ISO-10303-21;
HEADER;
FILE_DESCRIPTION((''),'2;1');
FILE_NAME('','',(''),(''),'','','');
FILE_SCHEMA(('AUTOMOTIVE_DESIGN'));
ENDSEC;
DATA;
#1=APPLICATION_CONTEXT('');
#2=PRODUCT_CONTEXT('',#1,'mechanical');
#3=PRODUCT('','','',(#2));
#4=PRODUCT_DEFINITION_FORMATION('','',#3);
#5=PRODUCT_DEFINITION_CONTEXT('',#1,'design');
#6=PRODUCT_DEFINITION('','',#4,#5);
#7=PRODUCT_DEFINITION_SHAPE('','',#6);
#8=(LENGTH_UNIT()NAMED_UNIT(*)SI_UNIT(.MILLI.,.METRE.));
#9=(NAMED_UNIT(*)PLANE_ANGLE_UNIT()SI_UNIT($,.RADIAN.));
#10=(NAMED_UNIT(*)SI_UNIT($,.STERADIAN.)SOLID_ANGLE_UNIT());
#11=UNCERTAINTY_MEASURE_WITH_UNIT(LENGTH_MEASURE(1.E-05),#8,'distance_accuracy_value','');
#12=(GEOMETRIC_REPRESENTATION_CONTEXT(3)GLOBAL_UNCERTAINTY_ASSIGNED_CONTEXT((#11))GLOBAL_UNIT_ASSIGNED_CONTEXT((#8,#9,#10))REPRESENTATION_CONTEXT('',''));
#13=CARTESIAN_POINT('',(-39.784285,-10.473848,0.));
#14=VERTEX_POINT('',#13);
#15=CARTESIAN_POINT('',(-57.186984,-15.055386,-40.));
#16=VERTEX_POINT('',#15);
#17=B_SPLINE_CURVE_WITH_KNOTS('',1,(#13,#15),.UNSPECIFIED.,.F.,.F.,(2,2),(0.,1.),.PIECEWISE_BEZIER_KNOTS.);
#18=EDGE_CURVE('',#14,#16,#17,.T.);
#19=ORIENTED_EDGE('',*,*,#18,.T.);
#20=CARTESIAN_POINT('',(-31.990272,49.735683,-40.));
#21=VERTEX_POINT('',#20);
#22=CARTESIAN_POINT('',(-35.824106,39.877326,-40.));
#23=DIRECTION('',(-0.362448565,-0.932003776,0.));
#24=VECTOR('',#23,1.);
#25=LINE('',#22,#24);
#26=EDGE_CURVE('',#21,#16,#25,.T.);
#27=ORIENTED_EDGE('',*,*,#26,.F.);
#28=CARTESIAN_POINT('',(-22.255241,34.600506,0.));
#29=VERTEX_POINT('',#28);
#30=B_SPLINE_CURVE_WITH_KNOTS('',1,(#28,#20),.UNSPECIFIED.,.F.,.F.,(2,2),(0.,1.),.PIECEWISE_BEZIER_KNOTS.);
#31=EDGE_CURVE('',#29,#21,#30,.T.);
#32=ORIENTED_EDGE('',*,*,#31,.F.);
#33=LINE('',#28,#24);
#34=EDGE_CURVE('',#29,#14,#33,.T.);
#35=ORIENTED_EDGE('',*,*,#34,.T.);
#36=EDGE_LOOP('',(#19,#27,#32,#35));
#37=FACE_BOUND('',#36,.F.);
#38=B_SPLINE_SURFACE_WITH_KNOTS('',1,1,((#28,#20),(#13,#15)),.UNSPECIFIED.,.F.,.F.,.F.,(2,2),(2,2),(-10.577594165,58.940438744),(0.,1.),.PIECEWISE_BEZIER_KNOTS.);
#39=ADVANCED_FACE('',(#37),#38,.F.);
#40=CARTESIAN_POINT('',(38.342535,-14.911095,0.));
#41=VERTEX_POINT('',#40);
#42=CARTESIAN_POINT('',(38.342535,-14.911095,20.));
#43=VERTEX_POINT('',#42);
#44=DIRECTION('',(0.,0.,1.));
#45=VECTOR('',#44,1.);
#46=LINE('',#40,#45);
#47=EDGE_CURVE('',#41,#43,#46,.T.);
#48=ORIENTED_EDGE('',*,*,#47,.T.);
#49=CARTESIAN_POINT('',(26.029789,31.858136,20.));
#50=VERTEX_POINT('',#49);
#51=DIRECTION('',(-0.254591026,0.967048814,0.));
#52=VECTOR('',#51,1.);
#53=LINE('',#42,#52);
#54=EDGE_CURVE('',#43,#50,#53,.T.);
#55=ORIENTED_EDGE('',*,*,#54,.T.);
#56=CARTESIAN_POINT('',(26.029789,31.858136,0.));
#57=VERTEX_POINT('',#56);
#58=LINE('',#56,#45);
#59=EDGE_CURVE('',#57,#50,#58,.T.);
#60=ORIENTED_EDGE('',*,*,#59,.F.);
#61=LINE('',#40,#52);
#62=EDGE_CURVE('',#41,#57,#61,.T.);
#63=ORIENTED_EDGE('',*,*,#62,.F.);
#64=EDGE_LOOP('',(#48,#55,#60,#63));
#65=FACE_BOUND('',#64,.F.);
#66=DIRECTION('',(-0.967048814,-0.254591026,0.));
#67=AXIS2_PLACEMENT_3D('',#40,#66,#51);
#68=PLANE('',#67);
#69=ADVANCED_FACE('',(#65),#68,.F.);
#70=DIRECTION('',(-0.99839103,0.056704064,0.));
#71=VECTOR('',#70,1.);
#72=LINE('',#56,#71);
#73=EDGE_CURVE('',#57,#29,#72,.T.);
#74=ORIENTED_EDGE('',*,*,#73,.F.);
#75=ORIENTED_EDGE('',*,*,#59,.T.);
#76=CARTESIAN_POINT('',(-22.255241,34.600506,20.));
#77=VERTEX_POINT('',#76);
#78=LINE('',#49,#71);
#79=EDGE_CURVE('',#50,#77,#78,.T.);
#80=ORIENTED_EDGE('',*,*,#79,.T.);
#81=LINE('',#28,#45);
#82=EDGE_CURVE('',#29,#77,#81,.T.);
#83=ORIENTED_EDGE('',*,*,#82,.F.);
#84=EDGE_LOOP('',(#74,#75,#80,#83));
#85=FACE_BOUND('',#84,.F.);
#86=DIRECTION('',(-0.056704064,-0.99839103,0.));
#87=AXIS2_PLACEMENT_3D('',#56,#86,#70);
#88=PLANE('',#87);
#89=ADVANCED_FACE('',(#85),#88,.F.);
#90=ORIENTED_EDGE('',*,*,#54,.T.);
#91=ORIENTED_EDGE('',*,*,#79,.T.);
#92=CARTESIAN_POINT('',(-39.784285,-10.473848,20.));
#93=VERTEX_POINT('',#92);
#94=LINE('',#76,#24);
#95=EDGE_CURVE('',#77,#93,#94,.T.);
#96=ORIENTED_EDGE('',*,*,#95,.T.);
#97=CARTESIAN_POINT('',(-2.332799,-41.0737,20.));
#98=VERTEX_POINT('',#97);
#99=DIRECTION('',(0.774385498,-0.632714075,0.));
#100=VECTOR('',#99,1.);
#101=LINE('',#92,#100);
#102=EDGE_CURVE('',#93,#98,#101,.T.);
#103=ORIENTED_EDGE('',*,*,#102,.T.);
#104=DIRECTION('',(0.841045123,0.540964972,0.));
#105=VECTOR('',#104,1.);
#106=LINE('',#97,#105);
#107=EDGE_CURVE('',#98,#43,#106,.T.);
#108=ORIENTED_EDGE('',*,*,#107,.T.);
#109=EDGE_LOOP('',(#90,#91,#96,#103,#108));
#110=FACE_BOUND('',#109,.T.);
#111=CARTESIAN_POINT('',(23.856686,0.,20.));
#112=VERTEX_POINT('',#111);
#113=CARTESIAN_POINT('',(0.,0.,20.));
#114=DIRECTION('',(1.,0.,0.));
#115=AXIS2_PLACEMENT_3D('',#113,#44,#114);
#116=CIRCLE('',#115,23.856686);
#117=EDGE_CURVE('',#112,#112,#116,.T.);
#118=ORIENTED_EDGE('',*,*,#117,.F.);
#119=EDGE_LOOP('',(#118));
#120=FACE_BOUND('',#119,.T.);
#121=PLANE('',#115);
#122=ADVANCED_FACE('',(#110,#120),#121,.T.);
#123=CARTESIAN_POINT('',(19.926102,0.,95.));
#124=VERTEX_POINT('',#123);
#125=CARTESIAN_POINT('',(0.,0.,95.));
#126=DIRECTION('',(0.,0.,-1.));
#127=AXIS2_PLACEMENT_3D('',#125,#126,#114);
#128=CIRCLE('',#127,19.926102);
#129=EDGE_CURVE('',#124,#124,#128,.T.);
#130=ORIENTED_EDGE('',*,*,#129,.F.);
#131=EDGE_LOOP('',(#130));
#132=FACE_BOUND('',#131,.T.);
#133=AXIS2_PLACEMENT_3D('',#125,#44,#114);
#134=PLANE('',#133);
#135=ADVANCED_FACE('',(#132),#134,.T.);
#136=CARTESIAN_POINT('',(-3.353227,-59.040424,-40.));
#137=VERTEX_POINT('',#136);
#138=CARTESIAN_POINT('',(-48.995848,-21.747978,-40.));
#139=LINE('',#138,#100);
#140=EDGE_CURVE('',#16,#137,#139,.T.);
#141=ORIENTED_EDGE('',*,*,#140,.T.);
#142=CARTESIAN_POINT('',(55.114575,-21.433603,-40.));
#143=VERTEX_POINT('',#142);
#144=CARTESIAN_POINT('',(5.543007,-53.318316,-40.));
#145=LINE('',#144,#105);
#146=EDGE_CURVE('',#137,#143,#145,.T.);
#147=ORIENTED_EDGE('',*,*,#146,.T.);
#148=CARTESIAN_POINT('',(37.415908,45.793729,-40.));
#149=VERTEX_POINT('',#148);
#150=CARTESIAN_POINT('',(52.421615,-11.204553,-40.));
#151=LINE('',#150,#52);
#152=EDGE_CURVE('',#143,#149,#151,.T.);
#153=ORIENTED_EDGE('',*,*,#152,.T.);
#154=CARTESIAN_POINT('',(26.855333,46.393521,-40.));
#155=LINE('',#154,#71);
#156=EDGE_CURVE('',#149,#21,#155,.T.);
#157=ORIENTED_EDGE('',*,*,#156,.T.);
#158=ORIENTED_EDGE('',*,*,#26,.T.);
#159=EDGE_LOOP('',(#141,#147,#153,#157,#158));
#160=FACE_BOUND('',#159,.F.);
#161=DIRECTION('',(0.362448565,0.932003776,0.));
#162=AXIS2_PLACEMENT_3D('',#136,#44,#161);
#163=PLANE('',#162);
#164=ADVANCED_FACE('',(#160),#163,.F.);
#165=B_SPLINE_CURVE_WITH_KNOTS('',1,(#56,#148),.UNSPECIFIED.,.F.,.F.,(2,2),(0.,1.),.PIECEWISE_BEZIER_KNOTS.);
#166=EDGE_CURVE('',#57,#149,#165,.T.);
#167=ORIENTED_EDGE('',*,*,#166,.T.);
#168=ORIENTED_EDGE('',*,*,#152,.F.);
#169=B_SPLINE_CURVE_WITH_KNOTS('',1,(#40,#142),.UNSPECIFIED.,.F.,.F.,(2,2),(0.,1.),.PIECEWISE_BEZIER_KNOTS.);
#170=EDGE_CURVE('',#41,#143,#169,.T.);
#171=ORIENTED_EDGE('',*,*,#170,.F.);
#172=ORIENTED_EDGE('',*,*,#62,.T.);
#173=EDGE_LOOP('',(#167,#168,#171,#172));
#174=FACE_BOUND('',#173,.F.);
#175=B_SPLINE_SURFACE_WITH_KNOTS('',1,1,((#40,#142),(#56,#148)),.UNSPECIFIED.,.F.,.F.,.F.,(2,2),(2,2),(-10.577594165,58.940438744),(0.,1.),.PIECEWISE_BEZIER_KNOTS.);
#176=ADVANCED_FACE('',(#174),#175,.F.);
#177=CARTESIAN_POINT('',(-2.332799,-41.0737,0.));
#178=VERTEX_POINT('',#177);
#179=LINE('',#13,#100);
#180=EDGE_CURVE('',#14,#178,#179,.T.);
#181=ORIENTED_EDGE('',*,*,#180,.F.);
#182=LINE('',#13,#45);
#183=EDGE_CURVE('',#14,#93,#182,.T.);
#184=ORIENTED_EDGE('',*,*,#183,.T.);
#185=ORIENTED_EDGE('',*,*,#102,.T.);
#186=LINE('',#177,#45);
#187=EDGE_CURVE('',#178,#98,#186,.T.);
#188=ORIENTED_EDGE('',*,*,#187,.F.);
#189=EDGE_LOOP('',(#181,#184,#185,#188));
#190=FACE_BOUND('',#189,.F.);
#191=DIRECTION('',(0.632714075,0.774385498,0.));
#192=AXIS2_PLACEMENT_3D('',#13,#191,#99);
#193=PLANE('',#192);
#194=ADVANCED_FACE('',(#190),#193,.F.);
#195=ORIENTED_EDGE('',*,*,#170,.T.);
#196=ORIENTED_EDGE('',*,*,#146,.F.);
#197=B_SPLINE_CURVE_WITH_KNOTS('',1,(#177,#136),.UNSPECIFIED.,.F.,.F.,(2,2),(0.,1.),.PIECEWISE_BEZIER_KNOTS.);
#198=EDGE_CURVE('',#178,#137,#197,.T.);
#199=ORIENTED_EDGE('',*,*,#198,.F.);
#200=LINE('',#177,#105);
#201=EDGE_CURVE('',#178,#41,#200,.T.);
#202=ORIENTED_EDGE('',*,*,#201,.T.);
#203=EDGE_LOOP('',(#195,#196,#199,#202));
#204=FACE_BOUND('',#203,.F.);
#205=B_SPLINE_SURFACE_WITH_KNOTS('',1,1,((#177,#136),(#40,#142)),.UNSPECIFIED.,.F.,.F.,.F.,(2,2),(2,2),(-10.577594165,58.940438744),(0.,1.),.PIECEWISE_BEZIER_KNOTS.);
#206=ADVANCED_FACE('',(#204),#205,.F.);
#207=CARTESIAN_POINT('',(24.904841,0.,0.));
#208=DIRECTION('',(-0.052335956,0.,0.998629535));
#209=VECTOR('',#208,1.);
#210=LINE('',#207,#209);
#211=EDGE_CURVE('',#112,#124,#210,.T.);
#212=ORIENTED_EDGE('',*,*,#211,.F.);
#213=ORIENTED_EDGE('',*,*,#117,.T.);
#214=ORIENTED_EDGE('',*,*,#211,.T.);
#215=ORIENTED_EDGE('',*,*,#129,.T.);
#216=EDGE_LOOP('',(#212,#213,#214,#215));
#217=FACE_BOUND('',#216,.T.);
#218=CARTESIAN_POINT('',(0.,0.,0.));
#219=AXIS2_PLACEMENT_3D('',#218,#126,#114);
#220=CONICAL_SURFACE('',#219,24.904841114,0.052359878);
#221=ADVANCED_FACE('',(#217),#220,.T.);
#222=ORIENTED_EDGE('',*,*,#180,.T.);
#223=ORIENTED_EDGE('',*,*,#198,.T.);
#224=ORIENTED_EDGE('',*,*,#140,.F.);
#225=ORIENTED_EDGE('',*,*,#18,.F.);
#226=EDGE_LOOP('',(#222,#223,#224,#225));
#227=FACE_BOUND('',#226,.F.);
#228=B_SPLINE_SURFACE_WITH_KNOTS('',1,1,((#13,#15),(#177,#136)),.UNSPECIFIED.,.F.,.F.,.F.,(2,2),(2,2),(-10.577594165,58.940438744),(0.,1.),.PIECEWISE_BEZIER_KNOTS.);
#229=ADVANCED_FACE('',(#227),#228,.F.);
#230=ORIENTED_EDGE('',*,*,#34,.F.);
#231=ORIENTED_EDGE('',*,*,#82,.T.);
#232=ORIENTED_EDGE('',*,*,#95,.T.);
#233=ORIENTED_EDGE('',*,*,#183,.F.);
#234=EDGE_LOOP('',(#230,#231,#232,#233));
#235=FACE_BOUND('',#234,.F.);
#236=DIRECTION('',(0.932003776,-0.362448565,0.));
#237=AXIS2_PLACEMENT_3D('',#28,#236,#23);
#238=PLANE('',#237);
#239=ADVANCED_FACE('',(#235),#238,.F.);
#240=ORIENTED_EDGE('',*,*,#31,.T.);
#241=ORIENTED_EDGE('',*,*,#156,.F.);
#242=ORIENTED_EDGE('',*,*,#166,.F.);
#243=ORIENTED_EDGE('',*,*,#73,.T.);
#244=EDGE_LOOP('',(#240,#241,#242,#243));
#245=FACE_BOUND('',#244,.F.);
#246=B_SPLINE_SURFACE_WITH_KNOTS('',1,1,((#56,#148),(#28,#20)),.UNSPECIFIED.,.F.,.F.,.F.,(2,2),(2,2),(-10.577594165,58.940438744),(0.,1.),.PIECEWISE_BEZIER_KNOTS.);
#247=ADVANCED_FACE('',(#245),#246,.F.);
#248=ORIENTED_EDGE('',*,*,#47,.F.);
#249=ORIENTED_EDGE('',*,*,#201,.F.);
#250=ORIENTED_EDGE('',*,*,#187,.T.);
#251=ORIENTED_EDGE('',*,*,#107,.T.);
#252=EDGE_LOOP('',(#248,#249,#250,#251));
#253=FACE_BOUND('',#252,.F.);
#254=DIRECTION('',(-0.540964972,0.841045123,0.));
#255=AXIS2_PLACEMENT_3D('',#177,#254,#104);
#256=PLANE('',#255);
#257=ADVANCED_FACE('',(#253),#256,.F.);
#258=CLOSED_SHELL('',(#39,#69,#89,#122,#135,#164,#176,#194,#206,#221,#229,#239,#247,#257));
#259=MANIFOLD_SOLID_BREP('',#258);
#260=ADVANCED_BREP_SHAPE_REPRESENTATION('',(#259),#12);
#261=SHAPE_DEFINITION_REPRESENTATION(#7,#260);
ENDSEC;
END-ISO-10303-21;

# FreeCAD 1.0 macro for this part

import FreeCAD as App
import Part
import Sketcher
Q = App.Units.Quantity


def add_polygon(sketch, points):
    """Adds a closed chain of lines whose ends are joined by coincident constraints."""
    first, n = sketch.GeometryCount, len(points)
    for a, b in zip(points, points[1:] + points[:1]):
        sketch.addGeometry(Part.LineSegment(App.Vector(*a, 0), App.Vector(*b, 0)), False)
    for i in range(n):
        sketch.addConstraint(Sketcher.Constraint("Coincident", first + i, 2, first + (i + 1) % n, 1))

doc = App.newDocument("Part")
body = doc.addObject("PartDesign::Body", "Body")

sketch1 = doc.addObject("Sketcher::SketchObject", "Sketch")
body.addObject(sketch1)
sketch1.AttachmentSupport = (doc.XY_Plane, [""])
sketch1.MapMode = "FlatFace"
add_polygon(sketch1, [(-2.332799, -41.0737), (38.342535, -14.911095), (26.029789, 31.858136), (-22.255241, 34.600506), (-39.784285, -10.473848)])
sketch1.addConstraint([
    Sketcher.Constraint("Equal", 0, 1),
    Sketcher.Constraint("Equal", 1, 2),
    Sketcher.Constraint("Equal", 2, 3),
    Sketcher.Constraint("Equal", 3, 4),
    Sketcher.Constraint("DistanceX", 4, 2, -1, 1, Q("2.332799 mm")),
    Sketcher.Constraint("DistanceY", 4, 2, -1, 1, Q("41.0737 mm")),
    Sketcher.Constraint("DistanceY", 0, 2, 2, 2, Q("49.511601 mm")),
    Sketcher.Constraint("DistanceX", -1, 1, 1, 2, Q("26.029789 mm")),
    Sketcher.Constraint("DistanceX", 2, 2, -1, 1, Q("22.255241 mm")),
    Sketcher.Constraint("DistanceY", 0, 2, 1, 2, Q("46.769232 mm")),
])
pad1 = doc.addObject("PartDesign::Pad", "Pad")
body.addObject(pad1)
pad1.Profile = sketch1
pad1.Length = 40
pad1.Reversed = True
pad1.TaperAngle = 20
pad2 = doc.addObject("PartDesign::Pad", "Pad001")
body.addObject(pad2)
pad2.Profile = sketch1
pad2.Length = 20

sketch2 = doc.addObject("Sketcher::SketchObject", "Sketch001")
body.addObject(sketch2)
sketch2.AttachmentSupport = (doc.XY_Plane, [""])
sketch2.MapMode = "FlatFace"
sketch2.addGeometry(Part.Circle(App.Vector(0, 0, 0), App.Vector(0, 0, 1), 24.904841), False)
sketch2.addConstraint([
    Sketcher.Constraint("Coincident", 0, 3, -1, 1),
    Sketcher.Constraint("Diameter", 0, Q("49.809682 mm")),
])
pad3 = doc.addObject("PartDesign::Pad", "Pad002")
body.addObject(pad3)
pad3.Profile = sketch2
pad3.Length = 95
pad3.TaperAngle = -3

doc.recompute()
